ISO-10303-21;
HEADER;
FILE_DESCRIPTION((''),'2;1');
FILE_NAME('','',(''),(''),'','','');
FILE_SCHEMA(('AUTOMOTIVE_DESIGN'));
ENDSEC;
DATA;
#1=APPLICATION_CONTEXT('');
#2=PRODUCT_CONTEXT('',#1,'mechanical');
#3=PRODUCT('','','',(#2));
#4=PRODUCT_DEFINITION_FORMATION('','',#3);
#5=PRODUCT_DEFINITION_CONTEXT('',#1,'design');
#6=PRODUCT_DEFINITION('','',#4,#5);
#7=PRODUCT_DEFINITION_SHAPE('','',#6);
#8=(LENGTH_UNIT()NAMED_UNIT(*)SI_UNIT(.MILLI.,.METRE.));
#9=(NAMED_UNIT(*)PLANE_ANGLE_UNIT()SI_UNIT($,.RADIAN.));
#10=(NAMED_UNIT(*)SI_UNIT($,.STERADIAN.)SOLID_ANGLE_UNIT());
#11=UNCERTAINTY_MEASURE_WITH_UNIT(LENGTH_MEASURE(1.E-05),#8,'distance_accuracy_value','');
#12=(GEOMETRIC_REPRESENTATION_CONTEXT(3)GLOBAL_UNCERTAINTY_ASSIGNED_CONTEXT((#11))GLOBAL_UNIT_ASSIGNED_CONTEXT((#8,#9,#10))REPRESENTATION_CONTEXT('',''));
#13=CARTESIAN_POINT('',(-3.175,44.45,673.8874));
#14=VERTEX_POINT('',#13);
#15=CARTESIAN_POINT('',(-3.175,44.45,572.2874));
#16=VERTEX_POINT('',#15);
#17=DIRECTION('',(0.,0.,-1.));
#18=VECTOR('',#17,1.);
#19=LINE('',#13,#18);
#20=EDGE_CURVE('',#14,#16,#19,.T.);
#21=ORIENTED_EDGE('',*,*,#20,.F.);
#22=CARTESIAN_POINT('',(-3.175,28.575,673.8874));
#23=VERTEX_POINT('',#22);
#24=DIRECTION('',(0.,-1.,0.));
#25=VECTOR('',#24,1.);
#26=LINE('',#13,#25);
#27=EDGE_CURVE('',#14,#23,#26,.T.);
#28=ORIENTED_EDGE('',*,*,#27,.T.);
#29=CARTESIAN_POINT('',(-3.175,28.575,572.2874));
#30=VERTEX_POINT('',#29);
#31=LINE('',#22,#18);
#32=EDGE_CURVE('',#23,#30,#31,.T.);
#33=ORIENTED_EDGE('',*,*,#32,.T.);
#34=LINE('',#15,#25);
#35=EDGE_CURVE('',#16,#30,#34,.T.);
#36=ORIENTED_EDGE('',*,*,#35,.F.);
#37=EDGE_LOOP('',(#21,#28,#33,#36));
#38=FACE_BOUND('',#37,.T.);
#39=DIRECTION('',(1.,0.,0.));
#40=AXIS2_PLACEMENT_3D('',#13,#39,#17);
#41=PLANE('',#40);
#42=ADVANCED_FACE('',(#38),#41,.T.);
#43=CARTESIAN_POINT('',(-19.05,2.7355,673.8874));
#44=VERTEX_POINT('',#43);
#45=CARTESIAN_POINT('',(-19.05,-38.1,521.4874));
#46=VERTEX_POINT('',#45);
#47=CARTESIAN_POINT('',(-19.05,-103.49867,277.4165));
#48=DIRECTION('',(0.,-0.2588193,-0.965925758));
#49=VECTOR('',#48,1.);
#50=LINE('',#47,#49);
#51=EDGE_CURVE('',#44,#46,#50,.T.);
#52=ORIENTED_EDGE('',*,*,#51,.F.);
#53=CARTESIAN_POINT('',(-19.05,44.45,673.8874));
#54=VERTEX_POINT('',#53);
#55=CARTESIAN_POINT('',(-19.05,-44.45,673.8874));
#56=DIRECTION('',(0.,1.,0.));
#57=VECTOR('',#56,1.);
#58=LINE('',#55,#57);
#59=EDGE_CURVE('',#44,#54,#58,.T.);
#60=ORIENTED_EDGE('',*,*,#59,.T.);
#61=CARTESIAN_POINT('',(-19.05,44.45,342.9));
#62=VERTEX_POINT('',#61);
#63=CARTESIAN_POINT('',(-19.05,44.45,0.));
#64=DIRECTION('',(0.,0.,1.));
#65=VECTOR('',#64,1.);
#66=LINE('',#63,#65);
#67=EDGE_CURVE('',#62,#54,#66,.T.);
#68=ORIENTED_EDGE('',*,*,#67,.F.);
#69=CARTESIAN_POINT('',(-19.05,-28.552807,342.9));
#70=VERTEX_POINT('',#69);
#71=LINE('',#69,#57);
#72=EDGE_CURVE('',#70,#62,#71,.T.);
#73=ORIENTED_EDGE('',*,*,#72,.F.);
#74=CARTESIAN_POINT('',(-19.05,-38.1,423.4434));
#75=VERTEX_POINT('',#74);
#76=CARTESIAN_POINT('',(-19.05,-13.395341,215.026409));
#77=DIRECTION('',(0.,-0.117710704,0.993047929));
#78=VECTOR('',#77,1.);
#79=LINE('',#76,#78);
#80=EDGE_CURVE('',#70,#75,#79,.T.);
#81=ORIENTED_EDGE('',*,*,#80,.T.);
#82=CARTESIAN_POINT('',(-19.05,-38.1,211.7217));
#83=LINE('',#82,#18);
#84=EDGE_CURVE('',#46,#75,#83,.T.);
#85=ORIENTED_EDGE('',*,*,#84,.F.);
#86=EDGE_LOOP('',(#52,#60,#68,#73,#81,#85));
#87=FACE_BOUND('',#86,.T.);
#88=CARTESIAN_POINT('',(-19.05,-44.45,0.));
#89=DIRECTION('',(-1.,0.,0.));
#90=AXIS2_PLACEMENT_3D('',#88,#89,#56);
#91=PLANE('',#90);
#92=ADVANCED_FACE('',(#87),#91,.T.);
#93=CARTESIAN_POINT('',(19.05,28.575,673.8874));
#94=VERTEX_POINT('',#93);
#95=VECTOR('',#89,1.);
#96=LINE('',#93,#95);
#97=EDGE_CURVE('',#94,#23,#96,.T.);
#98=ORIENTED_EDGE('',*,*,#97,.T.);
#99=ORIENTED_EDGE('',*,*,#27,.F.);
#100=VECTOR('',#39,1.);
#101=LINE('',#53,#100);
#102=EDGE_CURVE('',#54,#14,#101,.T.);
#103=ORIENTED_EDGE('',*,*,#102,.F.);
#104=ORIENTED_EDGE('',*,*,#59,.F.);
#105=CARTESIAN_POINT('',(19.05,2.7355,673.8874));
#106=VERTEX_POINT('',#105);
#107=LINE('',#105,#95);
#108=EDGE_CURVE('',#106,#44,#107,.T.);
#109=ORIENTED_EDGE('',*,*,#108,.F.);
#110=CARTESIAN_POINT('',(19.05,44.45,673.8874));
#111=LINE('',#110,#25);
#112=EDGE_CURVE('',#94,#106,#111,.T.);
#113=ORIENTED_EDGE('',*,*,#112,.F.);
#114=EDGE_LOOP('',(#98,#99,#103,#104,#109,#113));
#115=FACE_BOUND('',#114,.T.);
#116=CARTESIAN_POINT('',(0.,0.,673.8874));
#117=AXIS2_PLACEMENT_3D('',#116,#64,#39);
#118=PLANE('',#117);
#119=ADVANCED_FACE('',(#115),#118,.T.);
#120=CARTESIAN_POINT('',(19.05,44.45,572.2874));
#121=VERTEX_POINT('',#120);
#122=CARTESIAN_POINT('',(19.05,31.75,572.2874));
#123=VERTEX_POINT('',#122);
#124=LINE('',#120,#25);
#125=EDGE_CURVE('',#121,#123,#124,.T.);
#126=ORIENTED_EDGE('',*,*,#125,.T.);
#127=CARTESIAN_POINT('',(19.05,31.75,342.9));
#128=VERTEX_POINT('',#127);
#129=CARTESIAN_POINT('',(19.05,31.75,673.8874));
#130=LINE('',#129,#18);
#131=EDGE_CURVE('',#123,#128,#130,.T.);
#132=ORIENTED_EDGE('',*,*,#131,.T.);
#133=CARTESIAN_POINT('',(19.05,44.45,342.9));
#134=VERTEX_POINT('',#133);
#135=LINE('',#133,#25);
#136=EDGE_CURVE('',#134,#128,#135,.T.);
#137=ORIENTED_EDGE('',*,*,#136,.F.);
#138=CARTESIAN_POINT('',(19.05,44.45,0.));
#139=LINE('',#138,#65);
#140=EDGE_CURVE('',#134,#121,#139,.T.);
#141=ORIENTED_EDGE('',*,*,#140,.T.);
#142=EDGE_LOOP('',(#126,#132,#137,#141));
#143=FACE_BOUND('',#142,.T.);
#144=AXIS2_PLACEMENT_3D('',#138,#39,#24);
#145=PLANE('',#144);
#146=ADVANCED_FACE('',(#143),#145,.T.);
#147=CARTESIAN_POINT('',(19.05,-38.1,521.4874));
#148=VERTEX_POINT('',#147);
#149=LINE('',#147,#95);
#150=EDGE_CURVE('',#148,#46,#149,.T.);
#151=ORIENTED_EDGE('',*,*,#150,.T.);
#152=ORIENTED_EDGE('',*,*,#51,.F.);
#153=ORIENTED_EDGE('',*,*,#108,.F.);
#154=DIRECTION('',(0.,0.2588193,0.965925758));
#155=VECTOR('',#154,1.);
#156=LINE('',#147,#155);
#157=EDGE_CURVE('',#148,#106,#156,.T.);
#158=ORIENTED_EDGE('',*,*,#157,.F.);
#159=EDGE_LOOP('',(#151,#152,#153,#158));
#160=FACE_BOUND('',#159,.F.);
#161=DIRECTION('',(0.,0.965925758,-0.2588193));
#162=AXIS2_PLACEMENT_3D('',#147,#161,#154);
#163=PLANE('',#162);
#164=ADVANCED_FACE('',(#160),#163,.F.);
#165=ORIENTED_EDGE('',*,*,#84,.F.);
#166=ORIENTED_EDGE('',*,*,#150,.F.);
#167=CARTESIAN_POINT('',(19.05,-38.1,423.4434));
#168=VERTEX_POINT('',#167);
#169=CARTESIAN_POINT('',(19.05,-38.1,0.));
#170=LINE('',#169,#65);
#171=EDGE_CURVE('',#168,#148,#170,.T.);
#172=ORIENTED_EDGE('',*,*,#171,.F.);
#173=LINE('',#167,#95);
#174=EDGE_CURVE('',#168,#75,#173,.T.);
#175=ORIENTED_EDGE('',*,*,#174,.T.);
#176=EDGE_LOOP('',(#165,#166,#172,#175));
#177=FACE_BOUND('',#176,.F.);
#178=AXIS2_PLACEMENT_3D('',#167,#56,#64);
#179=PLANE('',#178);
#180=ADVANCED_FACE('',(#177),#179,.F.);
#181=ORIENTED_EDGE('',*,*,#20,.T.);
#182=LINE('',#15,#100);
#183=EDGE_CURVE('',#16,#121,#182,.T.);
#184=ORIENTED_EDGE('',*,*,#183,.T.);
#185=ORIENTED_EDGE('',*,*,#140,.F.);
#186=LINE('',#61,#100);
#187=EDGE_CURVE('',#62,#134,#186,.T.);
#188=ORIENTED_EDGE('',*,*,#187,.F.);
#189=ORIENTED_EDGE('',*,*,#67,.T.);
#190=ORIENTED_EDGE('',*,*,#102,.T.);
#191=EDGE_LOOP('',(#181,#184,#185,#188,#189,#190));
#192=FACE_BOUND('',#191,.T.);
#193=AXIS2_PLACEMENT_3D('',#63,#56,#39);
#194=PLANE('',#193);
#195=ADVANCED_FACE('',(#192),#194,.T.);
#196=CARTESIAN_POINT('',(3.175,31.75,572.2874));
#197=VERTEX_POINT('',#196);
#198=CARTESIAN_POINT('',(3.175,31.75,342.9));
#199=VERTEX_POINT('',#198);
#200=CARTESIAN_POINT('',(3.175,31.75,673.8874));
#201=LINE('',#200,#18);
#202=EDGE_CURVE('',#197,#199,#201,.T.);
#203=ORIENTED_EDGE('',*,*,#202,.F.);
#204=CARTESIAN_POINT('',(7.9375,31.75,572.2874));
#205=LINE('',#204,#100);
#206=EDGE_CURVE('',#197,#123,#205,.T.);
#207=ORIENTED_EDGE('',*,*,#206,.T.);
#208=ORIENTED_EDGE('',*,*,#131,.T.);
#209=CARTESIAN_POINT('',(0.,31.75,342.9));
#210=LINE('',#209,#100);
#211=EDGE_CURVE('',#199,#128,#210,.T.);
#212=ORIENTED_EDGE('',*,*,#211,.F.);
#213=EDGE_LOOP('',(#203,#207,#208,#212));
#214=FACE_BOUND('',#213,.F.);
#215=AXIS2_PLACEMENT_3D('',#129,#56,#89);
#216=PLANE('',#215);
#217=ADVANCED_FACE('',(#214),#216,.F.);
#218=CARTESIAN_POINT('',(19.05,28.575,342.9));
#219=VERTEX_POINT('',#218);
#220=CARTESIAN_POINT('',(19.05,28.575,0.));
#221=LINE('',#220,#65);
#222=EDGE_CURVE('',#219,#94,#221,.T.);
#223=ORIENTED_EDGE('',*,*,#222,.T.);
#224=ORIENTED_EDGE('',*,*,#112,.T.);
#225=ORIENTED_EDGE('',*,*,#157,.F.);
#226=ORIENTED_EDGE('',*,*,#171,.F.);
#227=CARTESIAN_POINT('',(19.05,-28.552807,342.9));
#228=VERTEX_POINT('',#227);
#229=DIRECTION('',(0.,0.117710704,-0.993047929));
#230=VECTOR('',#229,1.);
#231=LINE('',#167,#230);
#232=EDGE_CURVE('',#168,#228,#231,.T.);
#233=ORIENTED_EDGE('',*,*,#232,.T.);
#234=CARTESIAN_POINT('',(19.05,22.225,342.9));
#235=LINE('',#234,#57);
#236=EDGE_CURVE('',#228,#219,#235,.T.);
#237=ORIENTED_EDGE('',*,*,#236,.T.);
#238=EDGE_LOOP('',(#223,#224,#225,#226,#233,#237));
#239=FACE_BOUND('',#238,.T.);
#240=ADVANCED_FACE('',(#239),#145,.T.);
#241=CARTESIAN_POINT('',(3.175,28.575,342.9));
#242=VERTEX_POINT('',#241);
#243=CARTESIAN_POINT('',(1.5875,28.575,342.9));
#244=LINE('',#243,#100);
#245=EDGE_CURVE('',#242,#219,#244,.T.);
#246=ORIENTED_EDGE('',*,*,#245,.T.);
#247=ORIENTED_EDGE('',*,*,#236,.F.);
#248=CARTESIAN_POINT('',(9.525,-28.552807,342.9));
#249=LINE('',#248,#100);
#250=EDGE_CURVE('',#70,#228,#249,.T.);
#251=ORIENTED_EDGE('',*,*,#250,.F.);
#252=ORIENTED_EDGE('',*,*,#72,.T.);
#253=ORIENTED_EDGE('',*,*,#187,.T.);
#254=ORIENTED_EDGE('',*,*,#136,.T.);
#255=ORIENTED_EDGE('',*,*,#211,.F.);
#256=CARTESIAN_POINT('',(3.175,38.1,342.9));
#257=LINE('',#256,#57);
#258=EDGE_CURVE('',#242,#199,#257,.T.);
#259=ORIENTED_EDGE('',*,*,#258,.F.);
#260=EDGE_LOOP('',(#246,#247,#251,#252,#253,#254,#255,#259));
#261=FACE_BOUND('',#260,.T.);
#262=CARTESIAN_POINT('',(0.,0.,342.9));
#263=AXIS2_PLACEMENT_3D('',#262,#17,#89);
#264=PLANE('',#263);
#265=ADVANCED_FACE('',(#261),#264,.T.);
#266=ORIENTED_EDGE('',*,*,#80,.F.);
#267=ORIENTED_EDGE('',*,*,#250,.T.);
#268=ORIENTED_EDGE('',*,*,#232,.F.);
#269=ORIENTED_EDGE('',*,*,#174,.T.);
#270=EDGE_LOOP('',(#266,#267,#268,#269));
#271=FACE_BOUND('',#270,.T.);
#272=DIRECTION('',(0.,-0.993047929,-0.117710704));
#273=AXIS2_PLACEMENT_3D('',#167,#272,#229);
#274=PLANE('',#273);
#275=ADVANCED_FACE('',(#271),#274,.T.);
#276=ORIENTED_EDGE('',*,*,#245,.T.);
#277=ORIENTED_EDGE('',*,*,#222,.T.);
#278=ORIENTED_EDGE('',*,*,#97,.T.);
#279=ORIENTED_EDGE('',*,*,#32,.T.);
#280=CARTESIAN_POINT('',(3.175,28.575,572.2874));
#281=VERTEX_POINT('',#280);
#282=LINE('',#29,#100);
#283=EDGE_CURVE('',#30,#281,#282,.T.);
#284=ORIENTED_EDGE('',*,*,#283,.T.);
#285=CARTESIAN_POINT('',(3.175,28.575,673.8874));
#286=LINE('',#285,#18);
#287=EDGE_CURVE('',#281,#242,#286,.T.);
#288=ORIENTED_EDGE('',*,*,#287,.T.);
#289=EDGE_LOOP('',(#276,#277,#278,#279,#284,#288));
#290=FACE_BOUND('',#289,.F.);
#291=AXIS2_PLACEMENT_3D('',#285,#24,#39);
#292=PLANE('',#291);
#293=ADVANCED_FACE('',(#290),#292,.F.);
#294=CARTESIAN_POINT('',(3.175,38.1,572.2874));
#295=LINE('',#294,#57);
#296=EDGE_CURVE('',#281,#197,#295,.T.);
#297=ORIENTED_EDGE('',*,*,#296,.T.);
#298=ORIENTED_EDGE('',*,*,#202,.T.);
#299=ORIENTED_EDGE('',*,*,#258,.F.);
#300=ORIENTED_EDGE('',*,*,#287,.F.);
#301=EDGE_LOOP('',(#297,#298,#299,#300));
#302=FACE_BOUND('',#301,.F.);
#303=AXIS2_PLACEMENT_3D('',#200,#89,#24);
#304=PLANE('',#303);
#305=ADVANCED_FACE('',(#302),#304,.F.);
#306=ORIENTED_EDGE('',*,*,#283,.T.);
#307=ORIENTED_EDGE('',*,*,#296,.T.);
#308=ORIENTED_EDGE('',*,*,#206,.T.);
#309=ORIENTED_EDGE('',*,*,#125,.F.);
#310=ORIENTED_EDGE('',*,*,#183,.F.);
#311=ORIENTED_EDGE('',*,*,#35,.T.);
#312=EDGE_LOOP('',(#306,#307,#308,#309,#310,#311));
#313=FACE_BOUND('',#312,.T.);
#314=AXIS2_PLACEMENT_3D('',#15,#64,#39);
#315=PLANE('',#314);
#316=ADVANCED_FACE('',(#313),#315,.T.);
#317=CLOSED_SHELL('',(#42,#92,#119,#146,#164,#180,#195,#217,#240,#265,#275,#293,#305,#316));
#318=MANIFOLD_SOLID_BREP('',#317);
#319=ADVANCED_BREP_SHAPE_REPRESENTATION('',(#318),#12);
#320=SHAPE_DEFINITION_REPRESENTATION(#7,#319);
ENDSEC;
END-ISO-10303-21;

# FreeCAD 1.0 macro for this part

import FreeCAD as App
import Part
import Sketcher

V = App.Vector
Q = App.Units.Quantity


def add_polygon(sketch, points):
    """Adds a closed chain of lines whose ends are joined by coincident constraints."""
    first, n = sketch.GeometryCount, len(points)
    for a, b in zip(points, points[1:] + points[:1]):
        sketch.addGeometry(Part.LineSegment(App.Vector(*a, 0), App.Vector(*b, 0)), False)
    for i in range(n):
        sketch.addConstraint(Sketcher.Constraint("Coincident", first + i, 2, first + (i + 1) % n, 1))

doc = App.newDocument("Part")
body = doc.addObject("PartDesign::Body", "Body")

# Sketch on XY plane
sketch1 = doc.addObject("Sketcher::SketchObject", "Sketch")
body.addObject(sketch1)
sketch1.AttachmentSupport = (doc.XY_Plane, [""])
sketch1.MapMode = "FlatFace"
add_polygon(sketch1, [(-19, -44), (19, -44), (19, 44), (-19, 44)])  # lines 0-3
sketch1.addConstraint([
    Sketcher.Constraint("Horizontal", 0),
    Sketcher.Constraint("Vertical", 1),
    Sketcher.Constraint("Horizontal", 2),
    Sketcher.Constraint("Vertical", 3),
    Sketcher.Constraint("Symmetric", 0, 2, 2, 2, -1, 1),
    Sketcher.Constraint("DistanceX", 0, 1, 0, 2, Q("1.5 in")),
    Sketcher.Constraint("DistanceY", 1, 1, 1, 2, Q("3.5 in")),
])
pad1 = doc.addObject("PartDesign::Pad", "Pad")
body.addObject(pad1)
pad1.Profile = sketch1
pad1.Length = Q("26.531 in")

# Sketch on XY plane
sketch2 = doc.addObject("Sketcher::SketchObject", "Sketch001")
body.addObject(sketch2)
sketch2.AttachmentSupport = (doc.XY_Plane, [""])
sketch2.MapMode = "FlatFace"
sketch2.AttachmentOffset = App.Placement(V(0, 0, 26.531 * 25.4), App.Rotation())
add_polygon(sketch2, [(3.2, 28.6), (19.1, 28.6), (19.1, 31.8), (3.2, 31.8)])  # lines 0-3
sketch2.addConstraint([
    Sketcher.Constraint("Horizontal", 0),
    Sketcher.Constraint("Vertical", 1),
    Sketcher.Constraint("Horizontal", 2),
    Sketcher.Constraint("Vertical", 3),
    Sketcher.Constraint("DistanceX", 0, 1, 0, 2, Q("0.625 in")),
    Sketcher.Constraint("DistanceY", 1, 1, 1, 2, Q("0.125 in")),
    Sketcher.Constraint("DistanceX", -1, 1, 2, 2, Q("0.125 in")),
    Sketcher.Constraint("DistanceY", -1, 1, 1, 2, Q("1.25 in")),
])
pocket1 = doc.addObject("PartDesign::Pocket", "Pocket")
body.addObject(pocket1)
pocket1.Profile = sketch2
pocket1.Length = Q("29 in")

# Sketch on YZ plane
sketch3 = doc.addObject("Sketcher::SketchObject", "Sketch002")
body.addObject(sketch3)
sketch3.AttachmentSupport = (doc.YZ_Plane, [""])
sketch3.MapMode = "FlatFace"
sketch3.AttachmentOffset = App.Placement(V(0, 0, 0.75 * 25.4), App.Rotation())
add_polygon(sketch3, [(-44, 674), (-44, 0), (-18, 0), (-18, 252), (-38, 423), (-38, 521), (3, 674)])  # lines 0-6
sketch3.addConstraint([
    Sketcher.Constraint("Vertical", 0),
    Sketcher.Constraint("Horizontal", 1),
    Sketcher.Constraint("Vertical", 2),
    Sketcher.Constraint("Vertical", 4),
    Sketcher.Constraint("Horizontal", 6),
    Sketcher.Constraint("PointOnObject", 0, 2, -1),
    Sketcher.Constraint("DistanceY", 4, 2, 5, 2, Q("6 in")),
    Sketcher.Constraint("DistanceY", 4, 1, 4, 2, Q("3.86 in")),
    Sketcher.Constraint("DistanceX", 3, 2, 2, 2, Q("0.8 in")),
    Sketcher.Constraint("DistanceX", 0, 2, 3, 2, Q("0.25 in")),
    Sketcher.Constraint("Angle", 5, Q("75 deg")),
    Sketcher.Constraint("DistanceX", 1, 2, -1, 1, Q("0.7 in")),
    Sketcher.Constraint("DistanceY", 0, 2, 0, 1, Q("26.531 in")),
    Sketcher.Constraint("Angle", 3, Q("96.76 deg")),
])
pocket2 = doc.addObject("PartDesign::Pocket", "Pocket001")
body.addObject(pocket2)
pocket2.Profile = sketch3
pocket2.Length = Q("6 in")

# Sketch on XZ plane
sketch4 = doc.addObject("Sketcher::SketchObject", "Sketch003")
body.addObject(sketch4)
sketch4.AttachmentSupport = (doc.XZ_Plane, [""])
sketch4.MapMode = "FlatFace"
sketch4.AttachmentOffset = App.Placement(V(0, 0, -1.75 * 25.4), App.Rotation())
add_polygon(sketch4, [(-3, 674), (19, 674), (19, 572), (-3, 572)])  # lines 0-3
sketch4.addConstraint([
    Sketcher.Constraint("Horizontal", 0),
    Sketcher.Constraint("Vertical", 1),
    Sketcher.Constraint("Horizontal", 2),
    Sketcher.Constraint("Vertical", 3),
    Sketcher.Constraint("DistanceY", 1, 2, 1, 1, Q("4 in")),
    Sketcher.Constraint("DistanceX", 0, 1, 0, 2, Q("0.875 in")),
    Sketcher.Constraint("DistanceX", -1, 1, 0, 2, Q("0.75 in")),
    Sketcher.Constraint("DistanceY", -1, 1, 0, 2, Q("26.531 in")),
])
pocket3 = doc.addObject("PartDesign::Pocket", "Pocket002")
body.addObject(pocket3)
pocket3.Profile = sketch4
pocket3.Length = Q("0.625 in")
pocket3.Reversed = True

# Sketch on XZ plane
sketch5 = doc.addObject("Sketcher::SketchObject", "Sketch004")
body.addObject(sketch5)
sketch5.AttachmentSupport = (doc.XZ_Plane, [""])
sketch5.MapMode = "FlatFace"
sketch5.AttachmentOffset = App.Placement(V(0, 0, -1.75 * 25.4), App.Rotation())
add_polygon(sketch5, [(19, 343), (19, 216), (-19, 216), (-19, 343)])  # lines 0-3
sketch5.addConstraint([
    Sketcher.Constraint("Vertical", 0),
    Sketcher.Constraint("Horizontal", 1),
    Sketcher.Constraint("Vertical", 2),
    Sketcher.Constraint("Horizontal", 3),
    Sketcher.Constraint("DistanceY", 0, 2, 0, 1, Q("5 in")),
    Sketcher.Constraint("DistanceX", 1, 2, 1, 1, Q("1.5 in")),
    Sketcher.Constraint("DistanceY", -1, 1, 0, 2, Q("8.5 in")),
    Sketcher.Constraint("DistanceX", -1, 1, 0, 2, Q("0.75 in")),
])
pocket4 = doc.addObject("PartDesign::Pocket", "Pocket003")
body.addObject(pocket4)
pocket4.Profile = sketch5
pocket4.Length = Q("0.625 in")
pocket4.Reversed = True

# Sketch on XY plane
sketch6 = doc.addObject("Sketcher::SketchObject", "Sketch005")
body.addObject(sketch6)
sketch6.AttachmentSupport = (doc.XY_Plane, [""])
sketch6.MapMode = "FlatFace"
add_polygon(sketch6, [(-41, -56), (-41, 60), (68, 60), (68, -56)])  # lines 0-3
sketch6.addConstraint([
    Sketcher.Constraint("Vertical", 0),
    Sketcher.Constraint("Horizontal", 1),
    Sketcher.Constraint("Vertical", 2),
    Sketcher.Constraint("Horizontal", 3),
    Sketcher.Constraint("DistanceY", -1, 1, 0, 2, Q("2.36 in")),
    Sketcher.Constraint("DistanceX", 1, 1, 1, 2, Q("4.2817 in")),
    Sketcher.Constraint("DistanceY", 0, 1, 0, 2, Q("4.5559 in")),
    Sketcher.Constraint("DistanceX", 0, 2, -1, 1, Q("1.6241 in")),
])
pocket5 = doc.addObject("PartDesign::Pocket", "Pocket004")
body.addObject(pocket5)
pocket5.Profile = sketch6
pocket5.Length = Q("13.5 in")
pocket5.Reversed = True

doc.recompute()
